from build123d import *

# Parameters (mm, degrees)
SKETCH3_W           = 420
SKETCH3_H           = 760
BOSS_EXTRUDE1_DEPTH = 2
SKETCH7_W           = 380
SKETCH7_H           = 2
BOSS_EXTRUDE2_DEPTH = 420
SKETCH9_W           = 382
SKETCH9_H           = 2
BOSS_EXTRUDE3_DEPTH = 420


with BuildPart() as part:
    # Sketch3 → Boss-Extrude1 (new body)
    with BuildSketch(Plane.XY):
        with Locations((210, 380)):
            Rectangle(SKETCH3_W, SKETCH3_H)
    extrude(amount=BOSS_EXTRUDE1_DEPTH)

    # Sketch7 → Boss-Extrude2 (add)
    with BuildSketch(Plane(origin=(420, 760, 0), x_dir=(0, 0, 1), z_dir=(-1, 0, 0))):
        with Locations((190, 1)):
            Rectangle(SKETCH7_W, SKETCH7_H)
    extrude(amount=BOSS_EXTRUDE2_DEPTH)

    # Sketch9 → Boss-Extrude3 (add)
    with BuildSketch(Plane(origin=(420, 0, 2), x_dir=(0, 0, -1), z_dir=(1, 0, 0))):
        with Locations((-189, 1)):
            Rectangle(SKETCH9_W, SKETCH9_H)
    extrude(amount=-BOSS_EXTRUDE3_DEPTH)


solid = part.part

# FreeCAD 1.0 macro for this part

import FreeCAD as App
import Part
import Sketcher
from FreeCAD import Vector

doc = App.newDocument("Part")
params = doc.addObject("Spreadsheet::Sheet", "Params")
for row, (alias, value) in enumerate([
    ("sketch1_width", "420 mm"),
    ("sketch1_height", "760 mm"),
    ("pad1_length", "2 mm"),
    ("sketch2_width", "2 mm"),
    ("sketch2_height", "380 mm"),
    ("pad2_length", "420 mm"),
    ("sketch3_width", "2 mm"),
    ("sketch3_height", "382 mm"),
    ("pad3_length", "420 mm"),
], start=1):
    params.set(f"A{row}", alias)
    params.set(f"B{row}", "=" + value)
    params.setAlias(f"B{row}", alias)

body = doc.addObject("PartDesign::Body", "Body")

sketch1 = body.newObject("Sketcher::SketchObject", "Sketch")
sketch1.AttachmentSupport = (doc.getObject("XY_Plane"), [""])
sketch1.MapMode = "FlatFace"
sketch1.addGeometry(Part.LineSegment(Vector(0, 760, 0), Vector(0, 0, 0)), False)
sketch1.addGeometry(Part.LineSegment(Vector(0, 0, 0), Vector(420, 0, 0)), False)
sketch1.addGeometry(Part.LineSegment(Vector(420, 0, 0), Vector(420, 760, 0)), False)
sketch1.addGeometry(Part.LineSegment(Vector(420, 760, 0), Vector(0, 760, 0)), False)
sketch1.addConstraint(Sketcher.Constraint("Coincident", 0, 2, 1, 1))
sketch1.addConstraint(Sketcher.Constraint("Coincident", 1, 2, 2, 1))
sketch1.addConstraint(Sketcher.Constraint("Coincident", 2, 2, 3, 1))
sketch1.addConstraint(Sketcher.Constraint("Coincident", 3, 2, 0, 1))
sketch1.addConstraint(Sketcher.Constraint("Vertical", 0))
sketch1.addConstraint(Sketcher.Constraint("Horizontal", 1))
sketch1.addConstraint(Sketcher.Constraint("Vertical", 2))
sketch1.addConstraint(Sketcher.Constraint("Horizontal", 3))
sketch1.addConstraint(Sketcher.Constraint("Coincident", 0, 2, -1, 1))
sketch1.addConstraint(Sketcher.Constraint("DistanceX", 1, 1, 1, 2, 420.0))
sketch1.addConstraint(Sketcher.Constraint("DistanceY", 0, 2, 0, 1, 760.0))
sketch1.setExpression("Constraints[9]", "Params.sketch1_width")
sketch1.setExpression("Constraints[10]", "Params.sketch1_height")
pad1 = body.newObject("PartDesign::Pad", "Pad")
pad1.Profile = sketch1
pad1.setExpression("Length", "Params.pad1_length")

sketch2 = body.newObject("Sketcher::SketchObject", "Sketch001")
sketch2.AttachmentSupport = (doc.getObject("YZ_Plane"), [""])
sketch2.MapMode = "FlatFace"
sketch2.AttachmentOffset = App.Placement(Vector(0, 0, 420), App.Rotation())
sketch2.addGeometry(Part.LineSegment(Vector(762, 0, 0), Vector(760, 0, 0)), False)
sketch2.addGeometry(Part.LineSegment(Vector(760, 0, 0), Vector(760, 380, 0)), False)
sketch2.addGeometry(Part.LineSegment(Vector(760, 380, 0), Vector(762, 380, 0)), False)
sketch2.addGeometry(Part.LineSegment(Vector(762, 380, 0), Vector(762, 0, 0)), False)
sketch2.addConstraint(Sketcher.Constraint("Coincident", 0, 2, 1, 1))
sketch2.addConstraint(Sketcher.Constraint("Coincident", 1, 2, 2, 1))
sketch2.addConstraint(Sketcher.Constraint("Coincident", 2, 2, 3, 1))
sketch2.addConstraint(Sketcher.Constraint("Coincident", 3, 2, 0, 1))
sketch2.addConstraint(Sketcher.Constraint("Horizontal", 0))
sketch2.addConstraint(Sketcher.Constraint("Vertical", 1))
sketch2.addConstraint(Sketcher.Constraint("Horizontal", 2))
sketch2.addConstraint(Sketcher.Constraint("Vertical", 3))
sketch2.addConstraint(Sketcher.Constraint("PointOnObject", 0, 2, -1))
sketch2.addConstraint(Sketcher.Constraint("DistanceX", 0, 2, 0, 1, 2.0))
sketch2.addConstraint(Sketcher.Constraint("DistanceY", 1, 1, 1, 2, 380.0))
sketch2.addConstraint(Sketcher.Constraint("DistanceX", -1, 1, 0, 2, 760.0))
sketch2.setExpression("Constraints[9]", "Params.sketch2_width")
sketch2.setExpression("Constraints[10]", "Params.sketch2_height")
pad2 = body.newObject("PartDesign::Pad", "Pad001")
pad2.Profile = sketch2
pad2.setExpression("Length", "Params.pad2_length")
pad2.Reversed = True

sketch3 = body.newObject("Sketcher::SketchObject", "Sketch002")
sketch3.AttachmentSupport = (doc.getObject("YZ_Plane"), [""])
sketch3.MapMode = "FlatFace"
sketch3.AttachmentOffset = App.Placement(Vector(0, 0, 420), App.Rotation())
sketch3.addGeometry(Part.LineSegment(Vector(2, 382, 0), Vector(0, 382, 0)), False)
sketch3.addGeometry(Part.LineSegment(Vector(0, 382, 0), Vector(0, 0, 0)), False)
sketch3.addGeometry(Part.LineSegment(Vector(0, 0, 0), Vector(2, 0, 0)), False)
sketch3.addGeometry(Part.LineSegment(Vector(2, 0, 0), Vector(2, 382, 0)), False)
sketch3.addConstraint(Sketcher.Constraint("Coincident", 0, 2, 1, 1))
sketch3.addConstraint(Sketcher.Constraint("Coincident", 1, 2, 2, 1))
sketch3.addConstraint(Sketcher.Constraint("Coincident", 2, 2, 3, 1))
sketch3.addConstraint(Sketcher.Constraint("Coincident", 3, 2, 0, 1))
sketch3.addConstraint(Sketcher.Constraint("Horizontal", 0))
sketch3.addConstraint(Sketcher.Constraint("Vertical", 1))
sketch3.addConstraint(Sketcher.Constraint("Horizontal", 2))
sketch3.addConstraint(Sketcher.Constraint("Vertical", 3))
sketch3.addConstraint(Sketcher.Constraint("Coincident", 1, 2, -1, 1))
sketch3.addConstraint(Sketcher.Constraint("DistanceX", 0, 2, 0, 1, 2.0))
sketch3.addConstraint(Sketcher.Constraint("DistanceY", 1, 2, 1, 1, 382.0))
sketch3.setExpression("Constraints[9]", "Params.sketch3_width")
sketch3.setExpression("Constraints[10]", "Params.sketch3_height")
pad3 = body.newObject("PartDesign::Pad", "Pad002")
pad3.Profile = sketch3
pad3.setExpression("Length", "Params.pad3_length")
pad3.Reversed = True

doc.recompute()
